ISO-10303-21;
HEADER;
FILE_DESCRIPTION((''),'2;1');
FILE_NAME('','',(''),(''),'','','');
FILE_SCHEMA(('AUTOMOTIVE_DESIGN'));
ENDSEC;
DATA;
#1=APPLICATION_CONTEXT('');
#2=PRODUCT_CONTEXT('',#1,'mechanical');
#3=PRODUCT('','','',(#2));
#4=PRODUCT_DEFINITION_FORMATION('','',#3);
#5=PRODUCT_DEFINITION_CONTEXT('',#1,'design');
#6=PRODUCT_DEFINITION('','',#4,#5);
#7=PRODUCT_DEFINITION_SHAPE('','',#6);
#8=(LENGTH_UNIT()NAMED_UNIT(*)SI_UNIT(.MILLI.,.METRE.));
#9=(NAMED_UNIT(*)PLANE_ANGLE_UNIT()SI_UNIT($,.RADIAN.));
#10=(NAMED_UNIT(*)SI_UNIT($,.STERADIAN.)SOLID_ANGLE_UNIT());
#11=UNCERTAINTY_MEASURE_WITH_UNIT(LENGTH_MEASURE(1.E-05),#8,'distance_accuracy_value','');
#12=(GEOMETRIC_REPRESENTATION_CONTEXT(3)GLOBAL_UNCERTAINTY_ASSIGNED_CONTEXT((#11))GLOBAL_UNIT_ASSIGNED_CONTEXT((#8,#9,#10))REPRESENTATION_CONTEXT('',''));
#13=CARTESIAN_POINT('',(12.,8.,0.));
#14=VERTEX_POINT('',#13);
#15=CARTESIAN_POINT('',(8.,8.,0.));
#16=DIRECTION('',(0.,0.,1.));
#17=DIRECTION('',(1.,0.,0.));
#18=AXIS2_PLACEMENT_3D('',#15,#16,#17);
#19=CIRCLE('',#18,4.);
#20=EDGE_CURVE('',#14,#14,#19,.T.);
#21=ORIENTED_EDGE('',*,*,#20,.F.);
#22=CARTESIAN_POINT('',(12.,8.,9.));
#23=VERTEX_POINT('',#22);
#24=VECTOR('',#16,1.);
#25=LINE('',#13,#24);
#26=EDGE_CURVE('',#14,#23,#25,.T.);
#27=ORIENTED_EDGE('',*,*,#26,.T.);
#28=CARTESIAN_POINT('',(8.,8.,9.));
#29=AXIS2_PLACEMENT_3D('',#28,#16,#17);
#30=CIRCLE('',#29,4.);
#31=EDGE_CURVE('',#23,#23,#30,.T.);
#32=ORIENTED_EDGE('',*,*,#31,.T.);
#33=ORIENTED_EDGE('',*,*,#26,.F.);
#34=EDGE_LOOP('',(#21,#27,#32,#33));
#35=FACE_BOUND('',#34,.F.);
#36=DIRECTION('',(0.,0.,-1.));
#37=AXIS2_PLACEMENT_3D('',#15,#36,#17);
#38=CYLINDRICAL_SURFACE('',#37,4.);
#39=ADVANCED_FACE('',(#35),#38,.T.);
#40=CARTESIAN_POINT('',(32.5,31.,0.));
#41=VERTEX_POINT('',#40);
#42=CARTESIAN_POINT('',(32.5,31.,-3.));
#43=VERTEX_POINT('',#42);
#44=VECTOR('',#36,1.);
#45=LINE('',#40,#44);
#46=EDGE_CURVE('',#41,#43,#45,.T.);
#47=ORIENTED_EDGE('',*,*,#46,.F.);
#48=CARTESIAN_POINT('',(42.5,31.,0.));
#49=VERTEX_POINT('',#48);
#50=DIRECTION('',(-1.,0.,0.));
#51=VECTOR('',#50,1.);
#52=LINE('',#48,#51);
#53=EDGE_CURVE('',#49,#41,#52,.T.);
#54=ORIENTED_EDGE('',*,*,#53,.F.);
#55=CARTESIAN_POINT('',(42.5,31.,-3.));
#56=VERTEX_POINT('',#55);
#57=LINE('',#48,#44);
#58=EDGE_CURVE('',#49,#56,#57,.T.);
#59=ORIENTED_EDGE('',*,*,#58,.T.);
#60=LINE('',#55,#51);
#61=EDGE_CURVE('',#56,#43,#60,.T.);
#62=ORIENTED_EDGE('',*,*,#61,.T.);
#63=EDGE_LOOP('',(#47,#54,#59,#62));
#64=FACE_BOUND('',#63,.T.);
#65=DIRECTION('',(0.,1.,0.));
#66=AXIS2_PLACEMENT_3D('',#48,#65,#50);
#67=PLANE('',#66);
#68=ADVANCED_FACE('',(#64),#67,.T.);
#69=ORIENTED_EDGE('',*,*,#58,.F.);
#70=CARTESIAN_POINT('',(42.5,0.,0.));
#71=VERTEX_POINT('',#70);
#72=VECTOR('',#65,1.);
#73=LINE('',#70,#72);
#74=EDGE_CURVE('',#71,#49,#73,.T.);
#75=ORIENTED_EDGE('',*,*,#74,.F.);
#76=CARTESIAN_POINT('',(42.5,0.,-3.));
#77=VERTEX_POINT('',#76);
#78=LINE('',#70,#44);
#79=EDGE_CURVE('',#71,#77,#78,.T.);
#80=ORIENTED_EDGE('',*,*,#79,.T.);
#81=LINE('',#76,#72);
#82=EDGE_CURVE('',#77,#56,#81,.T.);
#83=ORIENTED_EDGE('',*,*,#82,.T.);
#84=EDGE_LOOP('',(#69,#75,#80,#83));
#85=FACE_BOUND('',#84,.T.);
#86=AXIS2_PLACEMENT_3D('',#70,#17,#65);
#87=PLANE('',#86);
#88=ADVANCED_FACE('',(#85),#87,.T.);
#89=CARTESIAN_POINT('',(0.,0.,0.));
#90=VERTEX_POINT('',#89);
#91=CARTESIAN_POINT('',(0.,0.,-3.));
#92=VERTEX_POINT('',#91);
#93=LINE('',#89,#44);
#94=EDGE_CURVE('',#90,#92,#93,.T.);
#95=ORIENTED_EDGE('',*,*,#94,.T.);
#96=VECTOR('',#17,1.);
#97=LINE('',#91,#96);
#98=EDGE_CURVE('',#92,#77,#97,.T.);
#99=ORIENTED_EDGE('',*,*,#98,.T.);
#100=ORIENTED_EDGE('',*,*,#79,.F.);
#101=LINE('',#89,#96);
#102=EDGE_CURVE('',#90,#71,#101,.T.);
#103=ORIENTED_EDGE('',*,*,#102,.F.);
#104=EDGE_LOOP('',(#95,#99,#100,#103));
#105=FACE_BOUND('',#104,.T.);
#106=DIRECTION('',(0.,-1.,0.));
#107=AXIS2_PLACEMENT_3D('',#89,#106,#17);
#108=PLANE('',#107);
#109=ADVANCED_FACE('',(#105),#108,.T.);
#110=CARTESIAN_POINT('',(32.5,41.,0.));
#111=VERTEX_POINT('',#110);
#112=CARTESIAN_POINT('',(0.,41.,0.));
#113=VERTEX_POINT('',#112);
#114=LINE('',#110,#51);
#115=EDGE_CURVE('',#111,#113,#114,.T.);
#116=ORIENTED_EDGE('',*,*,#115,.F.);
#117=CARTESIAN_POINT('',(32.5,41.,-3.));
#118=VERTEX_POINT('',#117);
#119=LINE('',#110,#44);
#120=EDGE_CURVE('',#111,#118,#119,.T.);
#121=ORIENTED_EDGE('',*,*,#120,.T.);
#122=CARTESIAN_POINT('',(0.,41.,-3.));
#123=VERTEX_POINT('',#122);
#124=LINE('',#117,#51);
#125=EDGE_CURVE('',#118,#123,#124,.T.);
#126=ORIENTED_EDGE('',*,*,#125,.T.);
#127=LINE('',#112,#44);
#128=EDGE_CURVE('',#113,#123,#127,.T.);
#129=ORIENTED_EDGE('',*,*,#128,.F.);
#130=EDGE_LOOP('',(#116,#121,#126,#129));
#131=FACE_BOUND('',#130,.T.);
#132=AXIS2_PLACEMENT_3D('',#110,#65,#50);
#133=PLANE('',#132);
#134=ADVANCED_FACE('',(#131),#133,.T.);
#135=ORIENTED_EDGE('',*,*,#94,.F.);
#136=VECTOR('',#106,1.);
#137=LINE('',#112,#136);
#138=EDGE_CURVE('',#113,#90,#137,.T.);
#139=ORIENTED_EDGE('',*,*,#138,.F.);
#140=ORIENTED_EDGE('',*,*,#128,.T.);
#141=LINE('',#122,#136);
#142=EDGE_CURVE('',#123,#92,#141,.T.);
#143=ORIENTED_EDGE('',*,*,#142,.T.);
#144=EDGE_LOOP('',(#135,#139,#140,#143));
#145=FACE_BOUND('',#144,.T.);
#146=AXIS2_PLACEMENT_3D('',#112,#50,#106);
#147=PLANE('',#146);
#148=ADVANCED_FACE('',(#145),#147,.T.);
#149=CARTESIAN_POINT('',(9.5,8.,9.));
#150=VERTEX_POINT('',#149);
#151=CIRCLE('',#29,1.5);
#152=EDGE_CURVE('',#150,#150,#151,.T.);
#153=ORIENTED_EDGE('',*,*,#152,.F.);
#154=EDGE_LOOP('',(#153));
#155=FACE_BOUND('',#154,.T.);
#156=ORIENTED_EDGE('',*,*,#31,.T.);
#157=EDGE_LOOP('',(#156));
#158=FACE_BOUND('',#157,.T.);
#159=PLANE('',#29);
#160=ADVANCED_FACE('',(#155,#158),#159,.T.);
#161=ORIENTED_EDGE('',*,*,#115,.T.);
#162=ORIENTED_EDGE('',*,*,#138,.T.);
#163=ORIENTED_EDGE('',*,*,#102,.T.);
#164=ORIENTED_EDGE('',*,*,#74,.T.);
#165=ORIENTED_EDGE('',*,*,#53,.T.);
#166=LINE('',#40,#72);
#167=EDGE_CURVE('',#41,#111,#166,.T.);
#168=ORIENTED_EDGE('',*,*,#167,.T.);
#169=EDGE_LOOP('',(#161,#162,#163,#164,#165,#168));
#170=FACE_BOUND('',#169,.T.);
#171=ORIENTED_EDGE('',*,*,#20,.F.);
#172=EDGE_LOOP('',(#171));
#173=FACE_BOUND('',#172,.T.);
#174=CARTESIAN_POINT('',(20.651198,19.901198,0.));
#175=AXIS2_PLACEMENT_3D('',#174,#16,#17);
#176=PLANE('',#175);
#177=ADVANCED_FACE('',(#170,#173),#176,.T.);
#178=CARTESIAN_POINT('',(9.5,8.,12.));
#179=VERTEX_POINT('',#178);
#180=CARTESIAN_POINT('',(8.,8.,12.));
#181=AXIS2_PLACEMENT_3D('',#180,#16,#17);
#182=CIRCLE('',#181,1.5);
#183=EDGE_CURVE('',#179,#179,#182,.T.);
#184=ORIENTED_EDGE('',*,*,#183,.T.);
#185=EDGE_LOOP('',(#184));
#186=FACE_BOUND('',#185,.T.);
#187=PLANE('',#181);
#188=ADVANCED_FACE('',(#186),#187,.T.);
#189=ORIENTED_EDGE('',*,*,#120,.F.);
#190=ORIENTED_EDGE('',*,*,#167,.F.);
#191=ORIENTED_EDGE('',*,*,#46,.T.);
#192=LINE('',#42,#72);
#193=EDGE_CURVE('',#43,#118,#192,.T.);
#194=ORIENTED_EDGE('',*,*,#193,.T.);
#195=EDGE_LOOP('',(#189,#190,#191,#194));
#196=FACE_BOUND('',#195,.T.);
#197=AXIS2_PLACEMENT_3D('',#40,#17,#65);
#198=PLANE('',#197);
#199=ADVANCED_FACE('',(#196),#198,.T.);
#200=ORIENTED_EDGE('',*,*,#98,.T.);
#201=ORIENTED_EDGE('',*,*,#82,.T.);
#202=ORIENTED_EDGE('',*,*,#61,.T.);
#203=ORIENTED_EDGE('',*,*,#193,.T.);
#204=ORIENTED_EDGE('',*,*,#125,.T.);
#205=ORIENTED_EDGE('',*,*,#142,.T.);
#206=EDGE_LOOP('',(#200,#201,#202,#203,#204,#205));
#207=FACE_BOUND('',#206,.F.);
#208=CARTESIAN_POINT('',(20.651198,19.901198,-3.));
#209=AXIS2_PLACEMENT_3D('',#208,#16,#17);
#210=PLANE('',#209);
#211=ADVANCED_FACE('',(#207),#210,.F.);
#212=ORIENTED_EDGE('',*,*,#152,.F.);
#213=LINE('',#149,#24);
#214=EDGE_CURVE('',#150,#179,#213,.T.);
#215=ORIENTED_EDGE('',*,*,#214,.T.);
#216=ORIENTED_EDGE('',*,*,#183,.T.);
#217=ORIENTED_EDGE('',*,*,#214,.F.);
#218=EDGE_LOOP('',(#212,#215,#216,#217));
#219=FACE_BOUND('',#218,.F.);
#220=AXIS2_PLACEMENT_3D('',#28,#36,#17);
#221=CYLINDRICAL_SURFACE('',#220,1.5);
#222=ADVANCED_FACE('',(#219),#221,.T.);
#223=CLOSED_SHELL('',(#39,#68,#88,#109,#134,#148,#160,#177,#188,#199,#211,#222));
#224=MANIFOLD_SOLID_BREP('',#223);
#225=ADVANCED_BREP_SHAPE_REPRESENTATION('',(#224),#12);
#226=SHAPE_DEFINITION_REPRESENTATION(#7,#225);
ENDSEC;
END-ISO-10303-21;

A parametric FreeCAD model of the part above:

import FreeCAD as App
import Part
import Sketcher
from FreeCAD import Vector
Q = App.Units.Quantity

doc = App.newDocument("Part")
body = doc.addObject("PartDesign::Body", "Body")

# Sketch on XY plane
sketch1 = body.newObject("Sketcher::SketchObject", "Sketch")
sketch1.AttachmentSupport = (doc.getObject("XY_Plane"), [""])
sketch1.MapMode = "FlatFace"
sketch1.addGeometry([
    Part.LineSegment(Vector(0, 41, 0), Vector(0, 0, 0)),  # 0
    Part.LineSegment(Vector(0, 0, 0), Vector(42, 0, 0)),  # 1
    Part.LineSegment(Vector(42, 0, 0), Vector(42, 31, 0)),  # 2
    Part.LineSegment(Vector(42, 31, 0), Vector(32, 31, 0)),  # 3
    Part.LineSegment(Vector(32, 31, 0), Vector(32, 41, 0)),  # 4
    Part.LineSegment(Vector(32, 41, 0), Vector(0, 41, 0)),  # 5
], False)
sketch1.addConstraint([
    Sketcher.Constraint("Coincident", 0, 2, 1, 1),
    Sketcher.Constraint("Coincident", 1, 2, 2, 1),
    Sketcher.Constraint("Coincident", 2, 2, 3, 1),
    Sketcher.Constraint("Coincident", 3, 2, 4, 1),
    Sketcher.Constraint("Coincident", 4, 2, 5, 1),
    Sketcher.Constraint("Coincident", 5, 2, 0, 1),
    Sketcher.Constraint("Vertical", 0),
    Sketcher.Constraint("Horizontal", 1),
    Sketcher.Constraint("Vertical", 2),
    Sketcher.Constraint("Horizontal", 3),
    Sketcher.Constraint("Vertical", 4),
    Sketcher.Constraint("Horizontal", 5),
    Sketcher.Constraint("Coincident", 0, 2, -1, 1),
    Sketcher.Constraint("Equal", 3, 4),
    Sketcher.Constraint("DistanceX", 3, 2, 3, 1, Q("10 mm")),
    Sketcher.Constraint("DistanceY", 0, 2, 0, 1, Q("41 mm")),
    Sketcher.Constraint("DistanceX", 1, 1, 1, 2, Q("42.5 mm")),
])
pad1 = body.newObject("PartDesign::Pad", "Pad")
pad1.Profile = sketch1
pad1.Length = 3
pad1.Reversed = True

# Sketch on XY plane
sketch2 = body.newObject("Sketcher::SketchObject", "Sketch001")
sketch2.AttachmentSupport = (doc.getObject("XY_Plane"), [""])
sketch2.MapMode = "FlatFace"
sketch2.addGeometry(Part.Circle(Vector(8, 8, 0), Vector(0, 0, 1), 4), False)
sketch2.addConstraint([
    Sketcher.Constraint("Diameter", 0, Q("8 mm")),
    Sketcher.Constraint("DistanceX", -1, 1, 0, 3, Q("8 mm")),
    Sketcher.Constraint("DistanceY", -1, 1, 0, 3, Q("8 mm")),
])
pad2 = body.newObject("PartDesign::Pad", "Pad001")
pad2.Profile = sketch2
pad2.Length = 9

# Sketch on XY plane
sketch3 = body.newObject("Sketcher::SketchObject", "Sketch002")
sketch3.AttachmentSupport = (doc.getObject("XY_Plane"), [""])
sketch3.MapMode = "FlatFace"
sketch3.AttachmentOffset = App.Placement(Vector(0, 0, 9), App.Rotation())
sketch3.addGeometry(Part.Circle(Vector(8, 8, 0), Vector(0, 0, 1), 1.5), False)
sketch3.addConstraint([
    Sketcher.Constraint("Diameter", 0, Q("3 mm")),
    Sketcher.Constraint("DistanceX", -1, 1, 0, 3, Q("8 mm")),
    Sketcher.Constraint("DistanceY", -1, 1, 0, 3, Q("8 mm")),
])
pad3 = body.newObject("PartDesign::Pad", "Pad002")
pad3.Profile = sketch3
pad3.Length = 3

doc.recompute()
